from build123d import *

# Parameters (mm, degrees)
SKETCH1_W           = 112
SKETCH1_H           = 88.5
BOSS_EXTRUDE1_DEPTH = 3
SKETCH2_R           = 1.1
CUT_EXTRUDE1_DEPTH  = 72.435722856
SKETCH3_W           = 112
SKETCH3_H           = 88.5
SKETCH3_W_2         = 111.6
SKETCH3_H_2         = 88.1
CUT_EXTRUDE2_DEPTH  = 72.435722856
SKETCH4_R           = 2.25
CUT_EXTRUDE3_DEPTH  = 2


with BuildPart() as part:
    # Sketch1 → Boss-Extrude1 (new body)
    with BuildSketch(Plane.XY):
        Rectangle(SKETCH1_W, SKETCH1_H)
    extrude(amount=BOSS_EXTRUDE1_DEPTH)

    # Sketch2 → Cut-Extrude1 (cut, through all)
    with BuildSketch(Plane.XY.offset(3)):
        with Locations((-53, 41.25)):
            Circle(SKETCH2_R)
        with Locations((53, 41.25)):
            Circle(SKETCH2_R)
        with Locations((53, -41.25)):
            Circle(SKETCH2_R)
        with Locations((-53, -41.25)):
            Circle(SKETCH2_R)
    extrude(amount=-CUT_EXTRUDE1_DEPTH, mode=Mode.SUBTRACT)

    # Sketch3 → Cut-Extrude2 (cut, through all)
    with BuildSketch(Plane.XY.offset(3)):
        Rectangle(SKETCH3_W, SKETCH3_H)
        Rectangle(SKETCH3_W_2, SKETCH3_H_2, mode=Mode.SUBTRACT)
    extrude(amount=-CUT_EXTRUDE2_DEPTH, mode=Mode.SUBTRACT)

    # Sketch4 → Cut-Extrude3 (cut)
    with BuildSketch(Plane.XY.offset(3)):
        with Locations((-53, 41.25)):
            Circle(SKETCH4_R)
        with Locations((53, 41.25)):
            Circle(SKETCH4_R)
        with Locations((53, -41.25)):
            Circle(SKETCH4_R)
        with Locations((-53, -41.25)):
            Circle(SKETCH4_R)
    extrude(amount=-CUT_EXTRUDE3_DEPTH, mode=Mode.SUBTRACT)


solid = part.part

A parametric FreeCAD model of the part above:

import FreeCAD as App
import Part
import Sketcher

V = App.Vector
Q = App.Units.Quantity

doc = App.newDocument("Part")
body = doc.addObject("PartDesign::Body", "Body")

# Sketch on XY plane
sketch1 = doc.addObject("Sketcher::SketchObject", "Sketch")
body.addObject(sketch1)
sketch1.AttachmentSupport = (doc.XY_Plane, [""])
sketch1.MapMode = "FlatFace"
sketch1.addGeometry([
    Part.LineSegment(V(-56, 44.25, 0), V(-56, -44.25, 0)),
    Part.LineSegment(V(-56, -44.25, 0), V(56, -44.25, 0)),
    Part.LineSegment(V(56, -44.25, 0), V(56, 44.25, 0)),
    Part.LineSegment(V(56, 44.25, 0), V(-56, 44.25, 0)),
], False)
sketch1.addConstraint([
    Sketcher.Constraint("Coincident", 0, 2, 1, 1),
    Sketcher.Constraint("Coincident", 1, 2, 2, 1),
    Sketcher.Constraint("Coincident", 2, 2, 3, 1),
    Sketcher.Constraint("Coincident", 3, 2, 0, 1),
    Sketcher.Constraint("Vertical", 0),
    Sketcher.Constraint("Horizontal", 1),
    Sketcher.Constraint("Vertical", 2),
    Sketcher.Constraint("Horizontal", 3),
    Sketcher.Constraint("Symmetric", 0, 2, 2, 2, -1, 1),
    Sketcher.Constraint("DistanceX", 1, 1, 1, 2, Q("112 mm")),
    Sketcher.Constraint("DistanceY", 0, 2, 0, 1, Q("88.5 mm")),
])
pad1 = doc.addObject("PartDesign::Pad", "Pad")
body.addObject(pad1)
pad1.Profile = sketch1
pad1.Length = 3

# Sketch on XY plane
sketch2 = doc.addObject("Sketcher::SketchObject", "Sketch001")
body.addObject(sketch2)
sketch2.AttachmentSupport = (doc.XY_Plane, [""])
sketch2.MapMode = "FlatFace"
sketch2.AttachmentOffset = App.Placement(V(0, 0, 3), App.Rotation())
sketch2.addGeometry([
    Part.Circle(V(-53, 41.25, 0), V(0, 0, 1), 1.1),
    Part.Circle(V(53, 41.25, 0), V(0, 0, 1), 1.1),
    Part.Circle(V(53, -41.25, 0), V(0, 0, 1), 1.1),
    Part.Circle(V(-53, -41.25, 0), V(0, 0, 1), 1.1),
], False)
sketch2.addConstraint([
    Sketcher.Constraint("Equal", 0, 1),
    Sketcher.Constraint("Equal", 1, 2),
    Sketcher.Constraint("Equal", 2, 3),
    Sketcher.Constraint("Symmetric", 0, 3, 2, 3, -1, 1),
    Sketcher.Constraint("Symmetric", 1, 3, 3, 3, -1, 1),
    Sketcher.Constraint("Symmetric", 0, 3, 1, 3, -2),
    Sketcher.Constraint("Diameter", 0, Q("2.2 mm")),
    Sketcher.Constraint("DistanceX", 0, 3, -1, 1, Q("53 mm")),
    Sketcher.Constraint("DistanceY", 2, 3, 1, 3, Q("82.5 mm")),
])
pocket1 = doc.addObject("PartDesign::Pocket", "Pocket")
body.addObject(pocket1)
pocket1.Profile = sketch2
pocket1.Type = "ThroughAll"

# Sketch on XY plane
sketch3 = doc.addObject("Sketcher::SketchObject", "Sketch002")
body.addObject(sketch3)
sketch3.AttachmentSupport = (doc.XY_Plane, [""])
sketch3.MapMode = "FlatFace"
sketch3.AttachmentOffset = App.Placement(V(0, 0, 3), App.Rotation())
sketch3.addGeometry([
    Part.LineSegment(V(-56, 44.25, 0), V(-56, -44.25, 0)),  # 0
    Part.LineSegment(V(-56, -44.25, 0), V(56, -44.25, 0)),  # 1
    Part.LineSegment(V(56, -44.25, 0), V(56, 44.25, 0)),  # 2
    Part.LineSegment(V(56, 44.25, 0), V(-56, 44.25, 0)),  # 3
    Part.LineSegment(V(55.8, -44.05, 0), V(-55.8, -44.05, 0)),  # 4
    Part.LineSegment(V(-55.8, -44.05, 0), V(-55.8, 44.05, 0)),  # 5
    Part.LineSegment(V(-55.8, 44.05, 0), V(55.8, 44.05, 0)),  # 6
    Part.LineSegment(V(55.8, 44.05, 0), V(55.8, -44.05, 0)),  # 7
], False)
sketch3.addConstraint([
    Sketcher.Constraint("Coincident", 0, 2, 1, 1),
    Sketcher.Constraint("Coincident", 1, 2, 2, 1),
    Sketcher.Constraint("Coincident", 2, 2, 3, 1),
    Sketcher.Constraint("Coincident", 3, 2, 0, 1),
    Sketcher.Constraint("Coincident", 4, 2, 5, 1),
    Sketcher.Constraint("Coincident", 5, 2, 6, 1),
    Sketcher.Constraint("Coincident", 6, 2, 7, 1),
    Sketcher.Constraint("Coincident", 7, 2, 4, 1),
    Sketcher.Constraint("Vertical", 0),
    Sketcher.Constraint("Horizontal", 1),
    Sketcher.Constraint("Vertical", 2),
    Sketcher.Constraint("Horizontal", 3),
    Sketcher.Constraint("Horizontal", 4),
    Sketcher.Constraint("Vertical", 5),
    Sketcher.Constraint("Horizontal", 6),
    Sketcher.Constraint("Vertical", 7),
    Sketcher.Constraint("Symmetric", 0, 2, 2, 2, -1, 1),
    Sketcher.Constraint("Symmetric", 4, 2, 6, 2, -1, 1),
    Sketcher.Constraint("DistanceX", 1, 1, 1, 2, Q("112 mm")),
    Sketcher.Constraint("DistanceX", 4, 2, 4, 1, Q("111.6 mm")),
    Sketcher.Constraint("DistanceY", 0, 2, 0, 1, Q("88.5 mm")),
    Sketcher.Constraint("DistanceY", 5, 1, 5, 2, Q("88.1 mm")),
])
pocket2 = doc.addObject("PartDesign::Pocket", "Pocket001")
body.addObject(pocket2)
pocket2.Profile = sketch3
pocket2.Type = "ThroughAll"

# Sketch on XY plane
sketch4 = doc.addObject("Sketcher::SketchObject", "Sketch003")
body.addObject(sketch4)
sketch4.AttachmentSupport = (doc.XY_Plane, [""])
sketch4.MapMode = "FlatFace"
sketch4.AttachmentOffset = App.Placement(V(0, 0, 3), App.Rotation())
sketch4.addGeometry([
    Part.Circle(V(-53, 41.25, 0), V(0, 0, 1), 2.25),
    Part.Circle(V(53, 41.25, 0), V(0, 0, 1), 2.25),
    Part.Circle(V(53, -41.25, 0), V(0, 0, 1), 2.25),
    Part.Circle(V(-53, -41.25, 0), V(0, 0, 1), 2.25),
], False)
sketch4.addConstraint([
    Sketcher.Constraint("Equal", 0, 1),
    Sketcher.Constraint("Equal", 1, 2),
    Sketcher.Constraint("Equal", 2, 3),
    Sketcher.Constraint("Symmetric", 0, 3, 2, 3, -1, 1),
    Sketcher.Constraint("Symmetric", 1, 3, 3, 3, -1, 1),
    Sketcher.Constraint("Symmetric", 0, 3, 1, 3, -2),
    Sketcher.Constraint("Diameter", 0, Q("4.5 mm")),
    Sketcher.Constraint("DistanceX", 0, 3, -1, 1, Q("53 mm")),
    Sketcher.Constraint("DistanceY", 2, 3, 1, 3, Q("82.5 mm")),
])
pocket3 = doc.addObject("PartDesign::Pocket", "Pocket002")
body.addObject(pocket3)
pocket3.Profile = sketch4
pocket3.Length = 2

doc.recompute()
